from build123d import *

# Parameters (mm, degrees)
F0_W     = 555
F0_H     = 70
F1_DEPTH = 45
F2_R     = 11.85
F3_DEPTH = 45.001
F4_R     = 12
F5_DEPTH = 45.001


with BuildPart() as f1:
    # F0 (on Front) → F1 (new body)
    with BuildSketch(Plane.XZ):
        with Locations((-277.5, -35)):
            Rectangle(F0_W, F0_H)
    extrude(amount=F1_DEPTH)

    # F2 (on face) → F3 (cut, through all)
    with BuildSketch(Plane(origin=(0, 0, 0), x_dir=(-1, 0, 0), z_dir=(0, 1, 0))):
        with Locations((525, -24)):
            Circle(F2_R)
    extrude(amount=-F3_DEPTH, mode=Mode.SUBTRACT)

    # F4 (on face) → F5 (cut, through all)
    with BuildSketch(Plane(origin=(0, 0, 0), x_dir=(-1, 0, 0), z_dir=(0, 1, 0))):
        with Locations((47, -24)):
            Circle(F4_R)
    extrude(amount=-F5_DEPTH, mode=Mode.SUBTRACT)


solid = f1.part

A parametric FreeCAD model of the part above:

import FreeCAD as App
import Part
import Sketcher
from FreeCAD import Vector


def add_polygon(sketch, points):
    """Adds a closed chain of lines whose ends are joined by coincident constraints."""
    first, n = sketch.GeometryCount, len(points)
    for a, b in zip(points, points[1:] + points[:1]):
        sketch.addGeometry(Part.LineSegment(App.Vector(*a, 0), App.Vector(*b, 0)), False)
    for i in range(n):
        sketch.addConstraint(Sketcher.Constraint("Coincident", first + i, 2, first + (i + 1) % n, 1))

doc = App.newDocument("Part")
body = doc.addObject("PartDesign::Body", "Body")

# Sketch on XZ plane
sketch1 = body.newObject("Sketcher::SketchObject", "Sketch")
sketch1.AttachmentSupport = (doc.getObject("XZ_Plane"), [""])
sketch1.MapMode = "FlatFace"
add_polygon(sketch1, [(-555, 0), (-555, -70), (0, -70), (0, 0)])  # lines 0-3
sketch1.addConstraint([
    Sketcher.Constraint("Vertical", 0),
    Sketcher.Constraint("Horizontal", 1),
    Sketcher.Constraint("Vertical", 2),
    Sketcher.Constraint("Horizontal", 3),
    Sketcher.Constraint("Coincident", 2, 2, -1, 1),
    Sketcher.Constraint("DistanceX", 1, 1, 1, 2, 555.0),
    Sketcher.Constraint("DistanceY", 0, 2, 0, 1, 70.0),
])
pad1 = body.newObject("PartDesign::Pad", "Pad")
pad1.Profile = sketch1
pad1.Length = 45

# Sketch on XZ plane
sketch2 = body.newObject("Sketcher::SketchObject", "Sketch001")
sketch2.AttachmentSupport = (doc.getObject("XZ_Plane"), [""])
sketch2.MapMode = "FlatFace"
sketch2.addGeometry(Part.Circle(Vector(-525, -24, 0), Vector(0, 0, 1), 12), False)
sketch2.addConstraint([
    Sketcher.Constraint("Diameter", 0, 23.7),
    Sketcher.Constraint("DistanceX", 0, 3, -1, 1, 525.0),
    Sketcher.Constraint("DistanceY", 0, 3, -1, 1, 24.0),
])
pocket1 = body.newObject("PartDesign::Pocket", "Pocket")
pocket1.Profile = sketch2
pocket1.Type = "ThroughAll"
pocket1.Reversed = True

# Sketch on XZ plane
sketch3 = body.newObject("Sketcher::SketchObject", "Sketch002")
sketch3.AttachmentSupport = (doc.getObject("XZ_Plane"), [""])
sketch3.MapMode = "FlatFace"
sketch3.addGeometry(Part.Circle(Vector(-47, -24, 0), Vector(0, 0, 1), 12), False)
sketch3.addConstraint([
    Sketcher.Constraint("Diameter", 0, 24.0),
    Sketcher.Constraint("DistanceX", 0, 3, -1, 1, 47.0),
    Sketcher.Constraint("DistanceY", 0, 3, -1, 1, 24.0),
])
pocket2 = body.newObject("PartDesign::Pocket", "Pocket001")
pocket2.Profile = sketch3
pocket2.Type = "ThroughAll"
pocket2.Reversed = True

doc.recompute()
